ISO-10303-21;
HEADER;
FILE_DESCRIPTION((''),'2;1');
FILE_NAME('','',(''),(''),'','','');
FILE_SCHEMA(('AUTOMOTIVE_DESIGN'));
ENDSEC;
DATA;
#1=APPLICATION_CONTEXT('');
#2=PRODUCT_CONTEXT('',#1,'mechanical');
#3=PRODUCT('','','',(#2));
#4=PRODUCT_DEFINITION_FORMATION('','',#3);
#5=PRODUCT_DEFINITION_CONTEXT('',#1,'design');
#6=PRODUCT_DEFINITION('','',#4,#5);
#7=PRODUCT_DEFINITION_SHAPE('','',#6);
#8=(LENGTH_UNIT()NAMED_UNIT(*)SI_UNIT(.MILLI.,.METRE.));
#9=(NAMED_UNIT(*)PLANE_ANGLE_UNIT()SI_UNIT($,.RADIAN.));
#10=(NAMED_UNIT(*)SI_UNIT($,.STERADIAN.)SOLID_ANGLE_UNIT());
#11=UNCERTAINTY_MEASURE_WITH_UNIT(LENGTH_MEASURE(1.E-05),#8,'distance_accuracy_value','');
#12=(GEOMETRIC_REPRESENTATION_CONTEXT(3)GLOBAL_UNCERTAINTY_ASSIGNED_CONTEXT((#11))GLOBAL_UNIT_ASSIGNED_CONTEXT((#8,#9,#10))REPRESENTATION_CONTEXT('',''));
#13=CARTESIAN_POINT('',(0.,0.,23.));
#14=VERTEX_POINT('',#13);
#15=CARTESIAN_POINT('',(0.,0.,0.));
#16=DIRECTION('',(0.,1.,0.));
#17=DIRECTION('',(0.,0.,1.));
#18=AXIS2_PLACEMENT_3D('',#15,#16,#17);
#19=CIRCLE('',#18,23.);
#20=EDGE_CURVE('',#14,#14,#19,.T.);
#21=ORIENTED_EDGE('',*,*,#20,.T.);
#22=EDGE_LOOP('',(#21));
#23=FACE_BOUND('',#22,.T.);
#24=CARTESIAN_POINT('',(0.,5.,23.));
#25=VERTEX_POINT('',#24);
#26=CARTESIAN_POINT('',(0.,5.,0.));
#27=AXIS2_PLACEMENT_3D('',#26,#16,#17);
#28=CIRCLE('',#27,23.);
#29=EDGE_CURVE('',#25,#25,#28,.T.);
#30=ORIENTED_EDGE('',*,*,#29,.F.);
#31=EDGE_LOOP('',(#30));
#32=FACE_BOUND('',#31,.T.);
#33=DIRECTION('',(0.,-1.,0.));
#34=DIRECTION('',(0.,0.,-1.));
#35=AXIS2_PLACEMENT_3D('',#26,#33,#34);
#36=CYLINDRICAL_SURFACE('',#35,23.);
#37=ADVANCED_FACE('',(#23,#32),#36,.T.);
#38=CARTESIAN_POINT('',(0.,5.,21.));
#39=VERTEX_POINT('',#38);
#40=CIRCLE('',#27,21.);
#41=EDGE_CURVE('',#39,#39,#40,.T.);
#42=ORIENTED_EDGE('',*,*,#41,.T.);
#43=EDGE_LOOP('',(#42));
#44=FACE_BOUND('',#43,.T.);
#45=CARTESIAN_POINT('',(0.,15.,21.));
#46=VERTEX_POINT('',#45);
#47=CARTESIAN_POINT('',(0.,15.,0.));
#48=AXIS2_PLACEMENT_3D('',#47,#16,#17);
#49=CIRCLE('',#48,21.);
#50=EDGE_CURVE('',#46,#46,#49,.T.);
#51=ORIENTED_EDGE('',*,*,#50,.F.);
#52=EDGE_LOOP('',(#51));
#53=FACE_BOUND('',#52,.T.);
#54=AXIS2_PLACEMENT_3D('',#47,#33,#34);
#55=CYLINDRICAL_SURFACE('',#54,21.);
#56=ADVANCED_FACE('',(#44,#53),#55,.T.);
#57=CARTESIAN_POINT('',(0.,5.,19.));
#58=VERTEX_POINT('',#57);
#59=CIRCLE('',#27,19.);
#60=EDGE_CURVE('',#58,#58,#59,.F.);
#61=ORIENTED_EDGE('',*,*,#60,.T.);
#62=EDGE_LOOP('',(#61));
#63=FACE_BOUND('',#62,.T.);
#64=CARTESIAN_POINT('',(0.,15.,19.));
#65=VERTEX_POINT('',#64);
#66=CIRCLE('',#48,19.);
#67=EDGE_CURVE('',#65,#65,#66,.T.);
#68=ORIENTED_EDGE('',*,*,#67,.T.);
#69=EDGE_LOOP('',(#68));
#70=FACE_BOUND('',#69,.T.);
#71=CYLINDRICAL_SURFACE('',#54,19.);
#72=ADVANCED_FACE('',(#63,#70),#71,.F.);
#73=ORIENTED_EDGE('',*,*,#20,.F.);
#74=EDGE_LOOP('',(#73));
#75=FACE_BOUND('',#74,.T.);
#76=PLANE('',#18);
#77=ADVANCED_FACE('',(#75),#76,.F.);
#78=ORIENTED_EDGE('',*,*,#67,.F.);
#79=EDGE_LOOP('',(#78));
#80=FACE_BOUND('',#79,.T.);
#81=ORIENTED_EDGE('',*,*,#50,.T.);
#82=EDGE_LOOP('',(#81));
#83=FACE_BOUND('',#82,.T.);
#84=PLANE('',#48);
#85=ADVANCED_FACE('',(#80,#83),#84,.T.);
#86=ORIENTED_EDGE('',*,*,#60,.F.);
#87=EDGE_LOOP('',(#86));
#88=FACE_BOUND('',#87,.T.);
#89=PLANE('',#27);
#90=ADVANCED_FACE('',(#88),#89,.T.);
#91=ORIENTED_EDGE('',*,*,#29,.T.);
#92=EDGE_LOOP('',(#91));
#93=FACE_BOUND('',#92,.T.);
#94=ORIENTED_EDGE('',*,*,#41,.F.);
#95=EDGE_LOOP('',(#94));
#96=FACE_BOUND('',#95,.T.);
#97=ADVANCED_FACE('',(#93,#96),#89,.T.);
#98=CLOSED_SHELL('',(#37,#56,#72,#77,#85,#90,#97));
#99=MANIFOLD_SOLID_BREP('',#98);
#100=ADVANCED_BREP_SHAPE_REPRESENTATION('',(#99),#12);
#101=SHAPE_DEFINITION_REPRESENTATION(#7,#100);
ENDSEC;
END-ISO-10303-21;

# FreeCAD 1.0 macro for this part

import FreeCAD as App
import Part
import Sketcher
from FreeCAD import Vector
Q = App.Units.Quantity

doc = App.newDocument("Part")
body = doc.addObject("PartDesign::Body", "Body")

sketch1 = doc.addObject("Sketcher::SketchObject", "Sketch")
body.addObject(sketch1)
sketch1.AttachmentSupport = (doc.XZ_Plane, [""])
sketch1.MapMode = "FlatFace"
sketch1.addGeometry(Part.Circle(Vector(0, 0, 0), Vector(0, 0, 1), 23), False)
sketch1.addConstraint([
    Sketcher.Constraint("Coincident", 0, 3, -1, 1),
    Sketcher.Constraint("Diameter", 0, Q("46 mm")),
])
pad1 = doc.addObject("PartDesign::Pad", "Pad")
body.addObject(pad1)
pad1.Profile = sketch1
pad1.Length = 5
pad1.Reversed = True

sketch2 = doc.addObject("Sketcher::SketchObject", "Sketch001")
body.addObject(sketch2)
sketch2.AttachmentSupport = (doc.XZ_Plane, [""])
sketch2.MapMode = "FlatFace"
sketch2.AttachmentOffset = App.Placement(Vector(0, 0, -5), App.Rotation())
sketch2.addGeometry([
    Part.Circle(Vector(0, 0, 0), Vector(0, 0, 1), 21),
    Part.Circle(Vector(0, 0, 0), Vector(0, 0, 1), 19),
], False)
sketch2.addConstraint([
    Sketcher.Constraint("Coincident", 0, 3, -1, 1),
    Sketcher.Constraint("Coincident", 1, 3, -1, 1),
    Sketcher.Constraint("Diameter", 0, Q("42 mm")),
    Sketcher.Constraint("Diameter", 1, Q("38 mm")),
])
pad2 = doc.addObject("PartDesign::Pad", "Pad001")
body.addObject(pad2)
pad2.Profile = sketch2
pad2.Length = 10
pad2.Reversed = True

doc.recompute()
